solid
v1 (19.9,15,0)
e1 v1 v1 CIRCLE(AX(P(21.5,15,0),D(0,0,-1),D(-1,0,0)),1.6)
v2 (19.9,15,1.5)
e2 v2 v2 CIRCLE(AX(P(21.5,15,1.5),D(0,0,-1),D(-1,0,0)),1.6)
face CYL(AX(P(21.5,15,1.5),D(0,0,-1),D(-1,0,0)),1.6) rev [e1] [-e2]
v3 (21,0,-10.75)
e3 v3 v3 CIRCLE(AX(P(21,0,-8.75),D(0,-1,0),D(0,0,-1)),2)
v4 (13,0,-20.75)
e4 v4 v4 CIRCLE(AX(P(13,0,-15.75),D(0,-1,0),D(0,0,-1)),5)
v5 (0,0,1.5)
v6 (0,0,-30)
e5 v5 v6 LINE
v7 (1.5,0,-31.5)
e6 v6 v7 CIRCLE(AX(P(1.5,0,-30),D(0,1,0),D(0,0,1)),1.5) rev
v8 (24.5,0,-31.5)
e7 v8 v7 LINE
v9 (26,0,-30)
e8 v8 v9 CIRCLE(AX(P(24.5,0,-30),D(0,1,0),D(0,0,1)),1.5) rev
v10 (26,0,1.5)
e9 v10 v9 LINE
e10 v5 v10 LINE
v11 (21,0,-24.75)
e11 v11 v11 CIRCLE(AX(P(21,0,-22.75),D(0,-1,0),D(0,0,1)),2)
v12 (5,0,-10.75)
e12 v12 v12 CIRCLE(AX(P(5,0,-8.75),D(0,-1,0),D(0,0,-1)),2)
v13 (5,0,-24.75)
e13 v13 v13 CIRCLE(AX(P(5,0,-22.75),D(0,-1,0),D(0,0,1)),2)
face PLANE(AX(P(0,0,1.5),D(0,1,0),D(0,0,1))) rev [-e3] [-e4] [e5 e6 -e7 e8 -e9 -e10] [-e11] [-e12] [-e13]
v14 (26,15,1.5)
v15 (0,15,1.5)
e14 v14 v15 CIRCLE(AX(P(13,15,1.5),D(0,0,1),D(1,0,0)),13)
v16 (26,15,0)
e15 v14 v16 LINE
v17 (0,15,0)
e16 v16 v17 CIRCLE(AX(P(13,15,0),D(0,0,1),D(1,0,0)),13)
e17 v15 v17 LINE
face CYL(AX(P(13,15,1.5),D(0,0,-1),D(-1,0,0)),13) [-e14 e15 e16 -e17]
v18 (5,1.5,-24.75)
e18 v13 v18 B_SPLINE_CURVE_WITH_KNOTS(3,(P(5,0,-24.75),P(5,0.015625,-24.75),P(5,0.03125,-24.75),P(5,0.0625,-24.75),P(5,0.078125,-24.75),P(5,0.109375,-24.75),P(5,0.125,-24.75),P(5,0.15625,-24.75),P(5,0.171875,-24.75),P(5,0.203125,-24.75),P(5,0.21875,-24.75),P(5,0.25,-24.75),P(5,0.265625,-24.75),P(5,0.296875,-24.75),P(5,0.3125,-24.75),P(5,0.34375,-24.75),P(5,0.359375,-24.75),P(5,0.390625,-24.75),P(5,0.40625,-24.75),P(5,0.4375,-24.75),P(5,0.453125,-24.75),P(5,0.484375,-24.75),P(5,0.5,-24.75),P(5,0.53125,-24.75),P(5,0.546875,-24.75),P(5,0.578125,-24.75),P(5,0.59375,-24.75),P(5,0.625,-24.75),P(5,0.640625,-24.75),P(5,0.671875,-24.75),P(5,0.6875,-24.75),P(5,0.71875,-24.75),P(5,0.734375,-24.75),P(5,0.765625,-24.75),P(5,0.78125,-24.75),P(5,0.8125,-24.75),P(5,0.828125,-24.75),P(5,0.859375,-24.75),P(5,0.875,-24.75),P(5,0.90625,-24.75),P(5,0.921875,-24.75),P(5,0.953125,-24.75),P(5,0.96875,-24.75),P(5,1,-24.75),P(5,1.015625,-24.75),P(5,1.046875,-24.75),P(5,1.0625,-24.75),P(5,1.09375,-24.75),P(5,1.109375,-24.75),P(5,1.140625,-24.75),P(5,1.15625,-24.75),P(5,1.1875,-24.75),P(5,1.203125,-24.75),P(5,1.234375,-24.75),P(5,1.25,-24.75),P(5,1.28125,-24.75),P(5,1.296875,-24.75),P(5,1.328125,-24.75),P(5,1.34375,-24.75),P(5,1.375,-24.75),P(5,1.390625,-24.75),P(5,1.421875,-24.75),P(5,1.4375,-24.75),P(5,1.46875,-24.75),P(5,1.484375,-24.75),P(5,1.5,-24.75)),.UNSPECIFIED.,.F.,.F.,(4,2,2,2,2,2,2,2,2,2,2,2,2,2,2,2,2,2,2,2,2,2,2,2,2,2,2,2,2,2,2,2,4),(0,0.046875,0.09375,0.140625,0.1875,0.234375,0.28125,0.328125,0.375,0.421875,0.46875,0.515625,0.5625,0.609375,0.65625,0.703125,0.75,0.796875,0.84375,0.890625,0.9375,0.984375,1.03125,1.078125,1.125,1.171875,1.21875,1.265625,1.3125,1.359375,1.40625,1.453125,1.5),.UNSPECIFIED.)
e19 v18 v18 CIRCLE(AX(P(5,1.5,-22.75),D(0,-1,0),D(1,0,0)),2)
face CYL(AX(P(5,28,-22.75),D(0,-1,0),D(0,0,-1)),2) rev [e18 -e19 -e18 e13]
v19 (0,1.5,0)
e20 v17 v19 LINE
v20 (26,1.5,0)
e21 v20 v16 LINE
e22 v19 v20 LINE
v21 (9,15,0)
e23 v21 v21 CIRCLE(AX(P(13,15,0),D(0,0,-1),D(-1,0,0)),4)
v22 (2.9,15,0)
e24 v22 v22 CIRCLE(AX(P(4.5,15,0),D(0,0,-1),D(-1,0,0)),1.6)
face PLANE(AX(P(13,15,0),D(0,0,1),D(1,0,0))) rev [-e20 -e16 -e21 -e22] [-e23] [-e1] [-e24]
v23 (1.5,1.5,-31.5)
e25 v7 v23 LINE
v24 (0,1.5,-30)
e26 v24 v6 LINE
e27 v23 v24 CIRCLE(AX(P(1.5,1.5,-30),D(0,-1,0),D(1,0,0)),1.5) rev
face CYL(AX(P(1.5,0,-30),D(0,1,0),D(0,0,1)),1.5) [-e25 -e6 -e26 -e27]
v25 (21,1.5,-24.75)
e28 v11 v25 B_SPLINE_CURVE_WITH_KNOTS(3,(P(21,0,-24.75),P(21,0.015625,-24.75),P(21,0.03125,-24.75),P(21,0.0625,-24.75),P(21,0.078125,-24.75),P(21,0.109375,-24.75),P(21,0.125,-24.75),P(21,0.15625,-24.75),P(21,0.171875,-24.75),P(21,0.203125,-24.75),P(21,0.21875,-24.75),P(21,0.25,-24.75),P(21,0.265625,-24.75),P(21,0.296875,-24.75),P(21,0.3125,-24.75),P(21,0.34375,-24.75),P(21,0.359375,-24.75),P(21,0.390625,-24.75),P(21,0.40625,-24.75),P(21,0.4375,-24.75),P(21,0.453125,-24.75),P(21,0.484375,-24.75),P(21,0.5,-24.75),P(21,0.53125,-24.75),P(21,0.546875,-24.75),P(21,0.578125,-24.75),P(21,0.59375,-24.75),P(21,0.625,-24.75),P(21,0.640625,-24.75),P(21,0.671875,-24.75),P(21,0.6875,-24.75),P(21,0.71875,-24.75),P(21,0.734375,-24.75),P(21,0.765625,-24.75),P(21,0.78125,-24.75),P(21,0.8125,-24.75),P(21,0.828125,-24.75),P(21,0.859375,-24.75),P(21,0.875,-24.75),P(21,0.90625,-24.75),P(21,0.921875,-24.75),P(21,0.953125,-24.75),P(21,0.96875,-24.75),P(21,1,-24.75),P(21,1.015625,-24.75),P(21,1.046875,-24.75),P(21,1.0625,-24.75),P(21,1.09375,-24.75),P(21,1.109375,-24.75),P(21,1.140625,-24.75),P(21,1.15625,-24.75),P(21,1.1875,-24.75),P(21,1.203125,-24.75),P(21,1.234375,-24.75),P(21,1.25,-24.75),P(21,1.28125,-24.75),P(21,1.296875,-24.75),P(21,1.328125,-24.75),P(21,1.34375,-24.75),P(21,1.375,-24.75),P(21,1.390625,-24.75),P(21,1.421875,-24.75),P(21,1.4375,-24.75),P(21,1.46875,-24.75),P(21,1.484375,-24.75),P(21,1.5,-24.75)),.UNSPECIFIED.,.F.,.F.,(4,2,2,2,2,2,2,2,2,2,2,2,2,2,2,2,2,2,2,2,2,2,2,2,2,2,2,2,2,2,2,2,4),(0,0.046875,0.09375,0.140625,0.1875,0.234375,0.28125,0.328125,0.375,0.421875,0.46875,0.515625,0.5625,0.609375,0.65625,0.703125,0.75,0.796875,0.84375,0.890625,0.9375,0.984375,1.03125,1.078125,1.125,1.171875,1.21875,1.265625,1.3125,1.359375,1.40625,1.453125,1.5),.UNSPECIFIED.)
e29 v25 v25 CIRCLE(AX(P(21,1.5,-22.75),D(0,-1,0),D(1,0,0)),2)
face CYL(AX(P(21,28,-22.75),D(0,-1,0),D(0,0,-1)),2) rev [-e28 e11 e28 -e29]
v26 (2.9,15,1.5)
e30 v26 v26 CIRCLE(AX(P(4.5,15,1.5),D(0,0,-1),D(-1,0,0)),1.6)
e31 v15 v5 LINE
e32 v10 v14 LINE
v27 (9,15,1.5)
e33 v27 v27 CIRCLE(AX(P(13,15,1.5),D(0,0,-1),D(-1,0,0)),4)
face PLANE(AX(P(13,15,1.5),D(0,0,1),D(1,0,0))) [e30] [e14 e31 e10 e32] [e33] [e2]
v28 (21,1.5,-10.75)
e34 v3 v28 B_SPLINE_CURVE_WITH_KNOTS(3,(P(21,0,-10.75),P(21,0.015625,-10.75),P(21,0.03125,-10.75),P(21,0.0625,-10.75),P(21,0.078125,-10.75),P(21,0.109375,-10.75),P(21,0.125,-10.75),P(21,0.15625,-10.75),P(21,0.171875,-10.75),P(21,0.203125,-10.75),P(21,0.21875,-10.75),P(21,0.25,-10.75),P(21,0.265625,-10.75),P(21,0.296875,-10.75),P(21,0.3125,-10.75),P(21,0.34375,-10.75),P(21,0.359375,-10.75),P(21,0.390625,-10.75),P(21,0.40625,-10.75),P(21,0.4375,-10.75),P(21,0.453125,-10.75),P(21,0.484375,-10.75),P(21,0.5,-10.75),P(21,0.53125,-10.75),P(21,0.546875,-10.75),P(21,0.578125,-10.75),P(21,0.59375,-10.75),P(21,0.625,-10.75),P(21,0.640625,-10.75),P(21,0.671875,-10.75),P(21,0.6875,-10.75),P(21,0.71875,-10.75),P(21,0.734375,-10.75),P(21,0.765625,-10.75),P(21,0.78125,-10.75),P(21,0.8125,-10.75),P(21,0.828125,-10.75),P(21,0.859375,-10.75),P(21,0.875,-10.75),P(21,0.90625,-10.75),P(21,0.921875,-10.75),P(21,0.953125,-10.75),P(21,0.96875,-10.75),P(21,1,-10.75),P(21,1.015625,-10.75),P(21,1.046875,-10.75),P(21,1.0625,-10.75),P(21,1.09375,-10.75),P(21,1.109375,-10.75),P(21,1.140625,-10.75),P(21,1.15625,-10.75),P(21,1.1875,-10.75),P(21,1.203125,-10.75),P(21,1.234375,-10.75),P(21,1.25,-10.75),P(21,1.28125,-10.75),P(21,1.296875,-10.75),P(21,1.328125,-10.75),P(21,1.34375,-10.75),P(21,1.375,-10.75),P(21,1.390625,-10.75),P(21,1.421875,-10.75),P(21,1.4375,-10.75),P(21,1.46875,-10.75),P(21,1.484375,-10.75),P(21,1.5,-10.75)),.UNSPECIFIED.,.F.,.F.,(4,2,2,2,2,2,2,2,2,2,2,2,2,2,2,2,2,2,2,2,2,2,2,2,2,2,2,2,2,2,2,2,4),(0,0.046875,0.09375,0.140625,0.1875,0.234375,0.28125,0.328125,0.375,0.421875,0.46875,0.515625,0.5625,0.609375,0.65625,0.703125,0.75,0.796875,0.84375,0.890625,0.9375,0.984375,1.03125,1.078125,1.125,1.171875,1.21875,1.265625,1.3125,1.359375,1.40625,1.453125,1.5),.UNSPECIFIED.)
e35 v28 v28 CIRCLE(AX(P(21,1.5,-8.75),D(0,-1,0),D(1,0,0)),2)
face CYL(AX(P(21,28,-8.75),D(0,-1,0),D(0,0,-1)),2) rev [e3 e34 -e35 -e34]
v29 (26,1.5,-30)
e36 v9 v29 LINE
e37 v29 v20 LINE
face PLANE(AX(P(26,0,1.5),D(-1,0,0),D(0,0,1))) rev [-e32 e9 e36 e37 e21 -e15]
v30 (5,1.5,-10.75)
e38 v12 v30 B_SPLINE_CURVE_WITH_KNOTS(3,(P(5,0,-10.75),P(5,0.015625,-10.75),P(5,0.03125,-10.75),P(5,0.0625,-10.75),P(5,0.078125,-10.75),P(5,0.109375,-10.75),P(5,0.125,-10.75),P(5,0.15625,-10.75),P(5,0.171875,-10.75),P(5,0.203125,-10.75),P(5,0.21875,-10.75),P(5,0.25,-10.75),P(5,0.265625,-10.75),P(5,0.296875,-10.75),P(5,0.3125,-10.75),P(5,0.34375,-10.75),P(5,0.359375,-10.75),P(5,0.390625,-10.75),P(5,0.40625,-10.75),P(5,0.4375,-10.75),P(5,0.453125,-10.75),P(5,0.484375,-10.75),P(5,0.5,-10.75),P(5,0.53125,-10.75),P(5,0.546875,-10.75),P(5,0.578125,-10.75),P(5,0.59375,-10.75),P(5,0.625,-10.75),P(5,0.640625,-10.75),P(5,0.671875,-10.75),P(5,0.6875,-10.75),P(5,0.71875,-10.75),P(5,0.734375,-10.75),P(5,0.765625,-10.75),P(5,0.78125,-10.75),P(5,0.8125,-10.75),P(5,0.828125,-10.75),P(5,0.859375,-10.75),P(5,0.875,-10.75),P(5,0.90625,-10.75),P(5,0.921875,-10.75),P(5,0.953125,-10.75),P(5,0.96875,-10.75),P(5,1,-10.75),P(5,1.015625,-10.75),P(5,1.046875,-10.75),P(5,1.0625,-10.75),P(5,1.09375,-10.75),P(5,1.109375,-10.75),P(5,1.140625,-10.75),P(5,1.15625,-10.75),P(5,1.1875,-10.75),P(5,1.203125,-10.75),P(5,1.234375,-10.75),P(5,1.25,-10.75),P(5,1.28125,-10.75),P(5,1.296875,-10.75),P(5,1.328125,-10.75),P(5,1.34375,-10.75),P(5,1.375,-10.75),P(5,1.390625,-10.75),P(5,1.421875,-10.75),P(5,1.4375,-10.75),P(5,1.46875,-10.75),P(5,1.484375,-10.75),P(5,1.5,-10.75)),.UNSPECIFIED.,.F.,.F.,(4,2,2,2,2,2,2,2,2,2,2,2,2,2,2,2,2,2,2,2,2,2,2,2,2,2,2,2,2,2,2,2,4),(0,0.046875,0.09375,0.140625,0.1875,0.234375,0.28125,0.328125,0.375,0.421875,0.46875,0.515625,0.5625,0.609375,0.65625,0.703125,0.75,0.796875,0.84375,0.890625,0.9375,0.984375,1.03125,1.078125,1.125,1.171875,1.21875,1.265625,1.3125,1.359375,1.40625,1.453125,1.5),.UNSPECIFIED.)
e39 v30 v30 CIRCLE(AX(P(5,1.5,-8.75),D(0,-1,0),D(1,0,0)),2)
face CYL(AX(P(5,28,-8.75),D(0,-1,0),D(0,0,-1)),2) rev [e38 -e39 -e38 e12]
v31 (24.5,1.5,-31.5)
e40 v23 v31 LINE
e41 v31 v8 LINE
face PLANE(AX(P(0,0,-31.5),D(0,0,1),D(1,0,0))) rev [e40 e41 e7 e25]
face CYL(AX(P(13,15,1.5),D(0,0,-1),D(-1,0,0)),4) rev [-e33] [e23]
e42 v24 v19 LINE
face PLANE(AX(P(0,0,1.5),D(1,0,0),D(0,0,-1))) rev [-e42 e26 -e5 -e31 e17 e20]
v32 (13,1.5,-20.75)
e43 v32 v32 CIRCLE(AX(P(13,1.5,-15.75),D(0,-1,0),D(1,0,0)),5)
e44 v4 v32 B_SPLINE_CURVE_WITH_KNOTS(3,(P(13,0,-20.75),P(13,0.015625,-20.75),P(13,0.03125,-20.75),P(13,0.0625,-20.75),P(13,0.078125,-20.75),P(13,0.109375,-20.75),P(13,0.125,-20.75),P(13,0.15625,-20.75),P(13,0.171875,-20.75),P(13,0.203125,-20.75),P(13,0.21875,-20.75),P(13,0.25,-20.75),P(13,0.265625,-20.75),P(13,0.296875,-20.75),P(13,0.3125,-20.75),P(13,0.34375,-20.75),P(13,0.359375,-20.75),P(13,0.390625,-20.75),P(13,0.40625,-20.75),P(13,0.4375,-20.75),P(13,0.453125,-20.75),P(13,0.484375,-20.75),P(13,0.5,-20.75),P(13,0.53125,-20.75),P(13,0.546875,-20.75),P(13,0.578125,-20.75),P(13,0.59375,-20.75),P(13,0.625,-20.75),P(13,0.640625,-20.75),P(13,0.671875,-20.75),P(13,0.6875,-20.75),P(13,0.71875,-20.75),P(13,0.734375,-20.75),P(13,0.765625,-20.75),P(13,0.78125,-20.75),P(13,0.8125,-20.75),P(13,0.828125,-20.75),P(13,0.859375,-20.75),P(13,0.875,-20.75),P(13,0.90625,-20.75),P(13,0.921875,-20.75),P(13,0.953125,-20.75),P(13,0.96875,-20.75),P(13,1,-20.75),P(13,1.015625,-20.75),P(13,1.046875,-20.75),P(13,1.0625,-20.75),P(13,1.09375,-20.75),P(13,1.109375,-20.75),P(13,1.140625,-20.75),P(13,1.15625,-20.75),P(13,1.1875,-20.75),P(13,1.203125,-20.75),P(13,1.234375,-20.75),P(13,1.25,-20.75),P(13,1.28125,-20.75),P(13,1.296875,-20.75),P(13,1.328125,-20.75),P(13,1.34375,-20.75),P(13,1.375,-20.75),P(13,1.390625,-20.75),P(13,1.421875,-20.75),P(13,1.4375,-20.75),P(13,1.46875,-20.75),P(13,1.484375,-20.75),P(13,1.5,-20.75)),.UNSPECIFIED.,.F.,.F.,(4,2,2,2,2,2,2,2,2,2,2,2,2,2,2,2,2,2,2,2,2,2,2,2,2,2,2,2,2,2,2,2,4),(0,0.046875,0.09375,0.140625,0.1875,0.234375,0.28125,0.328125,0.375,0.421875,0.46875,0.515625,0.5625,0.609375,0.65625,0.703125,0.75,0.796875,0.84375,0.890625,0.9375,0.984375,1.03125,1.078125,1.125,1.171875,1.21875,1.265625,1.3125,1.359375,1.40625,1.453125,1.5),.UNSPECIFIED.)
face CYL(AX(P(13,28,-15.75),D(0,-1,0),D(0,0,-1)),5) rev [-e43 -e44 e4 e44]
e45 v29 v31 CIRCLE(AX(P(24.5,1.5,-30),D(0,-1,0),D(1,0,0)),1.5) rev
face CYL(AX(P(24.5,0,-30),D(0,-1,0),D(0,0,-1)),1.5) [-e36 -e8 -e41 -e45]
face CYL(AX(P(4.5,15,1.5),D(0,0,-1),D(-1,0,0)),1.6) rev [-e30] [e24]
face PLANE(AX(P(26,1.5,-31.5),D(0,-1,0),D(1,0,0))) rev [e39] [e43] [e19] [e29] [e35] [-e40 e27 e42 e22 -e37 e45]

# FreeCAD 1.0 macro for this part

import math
import FreeCAD as App
import Part
import Sketcher
from FreeCAD import Vector


def edges_at(feature, points):
    """Names of the edges that pass closest to the given points."""
    edges = feature.Shape.Edges
    near = lambda p: min(range(len(edges)), key=lambda i: edges[i].distToShape(Part.Vertex(*p))[0])
    return sorted({f"Edge{near(p) + 1}" for p in points})


def add_polygon(sketch, points):
    """Adds a closed chain of lines whose ends are joined by coincident constraints."""
    first, n = sketch.GeometryCount, len(points)
    for a, b in zip(points, points[1:] + points[:1]):
        sketch.addGeometry(Part.LineSegment(App.Vector(*a, 0), App.Vector(*b, 0)), False)
    for i in range(n):
        sketch.addConstraint(Sketcher.Constraint("Coincident", first + i, 2, first + (i + 1) % n, 1))

doc = App.newDocument("Part")
body = doc.addObject("PartDesign::Body", "Body")

sketch1 = doc.addObject("Sketcher::SketchObject", "Sketch")
body.addObject(sketch1)
sketch1.AttachmentSupport = (doc.XY_Plane, [""])
sketch1.MapMode = "FlatFace"
sketch1.addGeometry([
    Part.LineSegment(Vector(0, 0, 0), Vector(26, 0, 0)),
    Part.LineSegment(Vector(26, 0, 0), Vector(26, 15, 0)),
    Part.ArcOfCircle(Part.Circle(Vector(13, 15, 0), Vector(0, 0, 1), 13), math.radians(0), math.radians(180)),
    Part.LineSegment(Vector(0, 15, 0), Vector(0, 0, 0)),
], False)
sketch1.addConstraint([
    Sketcher.Constraint("Coincident", 0, 2, 1, 1),
    Sketcher.Constraint("Tangent", 1, 2, 2, 1),
    Sketcher.Constraint("Tangent", 2, 2, 3, 1),
    Sketcher.Constraint("Coincident", 3, 2, 0, 1),
    Sketcher.Constraint("Horizontal", 0),
    Sketcher.Constraint("Vertical", 1),
    Sketcher.Constraint("Vertical", 3),
    Sketcher.Constraint("Coincident", 3, 2, -1, 1),
    Sketcher.Constraint("Radius", 2, 13.0),
    Sketcher.Constraint("DistanceY", 1, 1, 1, 2, 15.0),
])
pad1 = doc.addObject("PartDesign::Pad", "Pad")
body.addObject(pad1)
pad1.Profile = sketch1
pad1.Length = 1.5

sketch2 = doc.addObject("Sketcher::SketchObject", "Sketch001")
body.addObject(sketch2)
sketch2.AttachmentSupport = (doc.XY_Plane, [""])
sketch2.MapMode = "FlatFace"
sketch2.addGeometry([
    Part.Circle(Vector(21.5, 15, 0), Vector(0, 0, 1), 1.6),
    Part.Circle(Vector(13, 15, 0), Vector(0, 0, 1), 4),
    Part.Circle(Vector(4.5, 15, 0), Vector(0, 0, 1), 1.6),
], False)
sketch2.addConstraint([
    Sketcher.Constraint("Equal", 0, 2),
    Sketcher.Constraint("Horizontal", 0, 3, 1, 3),
    Sketcher.Constraint("Horizontal", 1, 3, 2, 3),
    Sketcher.Constraint("Diameter", 1, 8.0),
    Sketcher.Constraint("Diameter", 0, 3.2),
    Sketcher.Constraint("DistanceY", -1, 1, 0, 3, 15.0),
    Sketcher.Constraint("DistanceX", -1, 1, 1, 3, 13.0),
    Sketcher.Constraint("DistanceX", 2, 3, 0, 3, 17.0),
    Sketcher.Constraint("DistanceX", -1, 1, 0, 3, 21.5),
])
pocket1 = doc.addObject("PartDesign::Pocket", "Pocket")
body.addObject(pocket1)
pocket1.Profile = sketch2
pocket1.Type = "ThroughAll"
pocket1.Reversed = True

sketch3 = doc.addObject("Sketcher::SketchObject", "Sketch002")
body.addObject(sketch3)
sketch3.AttachmentSupport = (doc.XY_Plane, [""])
sketch3.MapMode = "FlatFace"
add_polygon(sketch3, [(26, 1.5), (26, 0), (0, 0), (0, 1.5)])
sketch3.addConstraint([
    Sketcher.Constraint("Vertical", 0),
    Sketcher.Constraint("Horizontal", 1),
    Sketcher.Constraint("Vertical", 2),
    Sketcher.Constraint("Horizontal", 3),
    Sketcher.Constraint("Coincident", 1, 2, -1, 1),
    Sketcher.Constraint("DistanceX", 1, 2, 1, 1, 26.0),
    Sketcher.Constraint("DistanceY", 0, 2, 0, 1, 1.5),
])
pad2 = doc.addObject("PartDesign::Pad", "Pad001")
body.addObject(pad2)
pad2.Profile = sketch3
pad2.Length = 31.5
pad2.Reversed = True

sketch4 = doc.addObject("Sketcher::SketchObject", "Sketch003")
body.addObject(sketch4)
sketch4.AttachmentSupport = (doc.XZ_Plane, [""])
sketch4.MapMode = "FlatFace"
sketch4.addGeometry([
    Part.Circle(Vector(13, -15.8, 0), Vector(0, 0, 1), 5),
    Part.Circle(Vector(5, -8.8, 0), Vector(0, 0, 1), 2),
    Part.Circle(Vector(21, -8.8, 0), Vector(0, 0, 1), 2),
    Part.Circle(Vector(21, -22.8, 0), Vector(0, 0, 1), 2),
    Part.Circle(Vector(5, -22.8, 0), Vector(0, 0, 1), 2),
], False)
sketch4.addConstraint([
    Sketcher.Constraint("Equal", 1, 2),
    Sketcher.Constraint("Equal", 2, 3),
    Sketcher.Constraint("Equal", 3, 4),
    Sketcher.Constraint("Horizontal", 1, 3, 2, 3),
    Sketcher.Constraint("Horizontal", 3, 3, 4, 3),
    Sketcher.Constraint("Vertical", 2, 3, 3, 3),
    Sketcher.Constraint("Vertical", 1, 3, 4, 3),
    Sketcher.Constraint("Diameter", 0, 10.0),
    Sketcher.Constraint("Diameter", 1, 4.0),
    Sketcher.Constraint("DistanceX", -1, 1, 0, 3, 13.0),
    Sketcher.Constraint("DistanceX", -1, 1, 1, 3, 5.0),
    Sketcher.Constraint("DistanceX", -1, 1, 2, 3, 21.0),
    Sketcher.Constraint("DistanceY", 0, 3, 1, 3, 7.0),
    Sketcher.Constraint("DistanceY", 3, 3, 0, 3, 7.0),
    Sketcher.Constraint("DistanceY", 0, 3, -1, 1, 15.75),
])
pocket2 = doc.addObject("PartDesign::Pocket", "Pocket001")
body.addObject(pocket2)
pocket2.Profile = sketch4
pocket2.Type = "ThroughAll"
doc.recompute()

fillet = doc.addObject("PartDesign::Fillet", "Fillet")
body.addObject(fillet)
fillet.Base = (pocket2, edges_at(pocket2, [(26, 0.75, -31.5), (0, 0.75, -31.5)]))
fillet.Radius = 1.5

doc.recompute()
